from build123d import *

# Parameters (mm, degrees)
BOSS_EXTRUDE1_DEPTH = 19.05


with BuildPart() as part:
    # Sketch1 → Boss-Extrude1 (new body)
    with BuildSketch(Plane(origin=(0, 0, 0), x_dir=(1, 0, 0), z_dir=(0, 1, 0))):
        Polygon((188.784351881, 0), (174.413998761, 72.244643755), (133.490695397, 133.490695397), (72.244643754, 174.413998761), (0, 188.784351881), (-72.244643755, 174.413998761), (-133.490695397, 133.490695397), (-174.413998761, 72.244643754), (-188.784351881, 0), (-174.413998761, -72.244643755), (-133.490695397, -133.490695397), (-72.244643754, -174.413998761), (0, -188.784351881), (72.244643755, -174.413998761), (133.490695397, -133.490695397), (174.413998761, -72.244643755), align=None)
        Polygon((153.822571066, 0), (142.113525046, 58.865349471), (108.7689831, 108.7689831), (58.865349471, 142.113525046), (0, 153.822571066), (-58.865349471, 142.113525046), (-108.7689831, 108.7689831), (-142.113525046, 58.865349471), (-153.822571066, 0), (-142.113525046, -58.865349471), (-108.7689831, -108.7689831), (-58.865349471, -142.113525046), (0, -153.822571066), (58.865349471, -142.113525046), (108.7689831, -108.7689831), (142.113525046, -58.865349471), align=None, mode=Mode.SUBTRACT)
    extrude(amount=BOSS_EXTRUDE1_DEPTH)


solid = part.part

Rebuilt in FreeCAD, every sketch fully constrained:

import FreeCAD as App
import Part
import Sketcher
from FreeCAD import Vector
Q = App.Units.Quantity


def add_polygon(sketch, points):
    """Adds a closed chain of lines whose ends are joined by coincident constraints."""
    first, n = sketch.GeometryCount, len(points)
    for a, b in zip(points, points[1:] + points[:1]):
        sketch.addGeometry(Part.LineSegment(App.Vector(*a, 0), App.Vector(*b, 0)), False)
    for i in range(n):
        sketch.addConstraint(Sketcher.Constraint("Coincident", first + i, 2, first + (i + 1) % n, 1))

doc = App.newDocument("Part")
body = doc.addObject("PartDesign::Body", "Body")

# Sketch on XZ plane
sketch1 = doc.addObject("Sketcher::SketchObject", "Sketch")
body.addObject(sketch1)
sketch1.AttachmentSupport = (doc.XZ_Plane, [""])
sketch1.MapMode = "FlatFace"
add_polygon(sketch1, [(188.784352, 0), (174.413999, -72.244644), (133.490695, -133.490695), (72.244644, -174.413999), (0, -188.784352), (-72.244644, -174.413999), (-133.490695, -133.490695), (-174.413999, -72.244644), (-188.784352, 0), (-174.413999, 72.244644), (-133.490695, 133.490695), (-72.244644, 174.413999), (0, 188.784352), (72.244644, 174.413999), (133.490695, 133.490695), (174.413999, 72.244644)])  # lines 0-15
add_polygon(sketch1, [(142.113525, -58.865349), (153.822571, 0), (142.113525, 58.865349), (108.768983, 108.768983), (58.865349, 142.113525), (0, 153.822571), (-58.865349, 142.113525), (-108.768983, 108.768983), (-142.113525, 58.865349), (-153.822571, 0), (-142.113525, -58.865349), (-108.768983, -108.768983), (-58.865349, -142.113525), (0, -153.822571), (58.865349, -142.113525), (108.768983, -108.768983)])  # lines 16-31
sketch1.addConstraint(Sketcher.Constraint("Symmetric", 0, 2, 8, 2, -1, 1))
sketch1.addConstraint(Sketcher.Constraint("Symmetric", 1, 2, 9, 2, -1, 1))
sketch1.addConstraint(Sketcher.Constraint("Symmetric", 2, 2, 10, 2, -1, 1))
sketch1.addConstraint(Sketcher.Constraint("Symmetric", 3, 2, 11, 2, -1, 1))
sketch1.addConstraint(Sketcher.Constraint("Symmetric", 4, 2, 12, 2, -1, 1))
sketch1.addConstraint(Sketcher.Constraint("Symmetric", 5, 2, 13, 2, -1, 1))
sketch1.addConstraint(Sketcher.Constraint("Symmetric", 6, 2, 14, 2, -1, 1))
sketch1.addConstraint(Sketcher.Constraint("Symmetric", 7, 2, 15, 2, -1, 1))
sketch1.addConstraint(Sketcher.Constraint("Symmetric", 16, 2, 24, 2, -1, 1))
sketch1.addConstraint(Sketcher.Constraint("Symmetric", 17, 2, 25, 2, -1, 1))
sketch1.addConstraint(Sketcher.Constraint("Symmetric", 18, 2, 26, 2, -1, 1))
sketch1.addConstraint(Sketcher.Constraint("Symmetric", 19, 2, 27, 2, -1, 1))
sketch1.addConstraint(Sketcher.Constraint("Symmetric", 20, 2, 28, 2, -1, 1))
sketch1.addConstraint(Sketcher.Constraint("Symmetric", 21, 2, 29, 2, -1, 1))
sketch1.addConstraint(Sketcher.Constraint("Symmetric", 22, 2, 30, 2, -1, 1))
sketch1.addConstraint(Sketcher.Constraint("Symmetric", 23, 2, 31, 2, -1, 1))
sketch1.addConstraint(Sketcher.Constraint("Symmetric", 2, 2, 4, 2, -2))
sketch1.addConstraint(Sketcher.Constraint("Symmetric", 1, 2, 5, 2, -2))
sketch1.addConstraint(Sketcher.Constraint("Symmetric", 0, 2, 6, 2, -2))
sketch1.addConstraint(Sketcher.Constraint("Symmetric", 19, 2, 21, 2, -2))
sketch1.addConstraint(Sketcher.Constraint("Symmetric", 18, 2, 22, 2, -2))
sketch1.addConstraint(Sketcher.Constraint("Symmetric", 17, 2, 23, 2, -2))
sketch1.addConstraint(Sketcher.Constraint("PointOnObject", 3, 2, -2))
sketch1.addConstraint(Sketcher.Constraint("PointOnObject", 7, 2, -1))
sketch1.addConstraint(Sketcher.Constraint("PointOnObject", 16, 2, -1))
sketch1.addConstraint(Sketcher.Constraint("PointOnObject", 20, 2, -2))
sketch1.addConstraint(Sketcher.Constraint("Perpendicular", 0, 4))
sketch1.addConstraint(Sketcher.Constraint("Perpendicular", 1, 5))
sketch1.addConstraint(Sketcher.Constraint("Perpendicular", 12, 16))
sketch1.addConstraint(Sketcher.Constraint("Parallel", 14, 18))
sketch1.addConstraint(Sketcher.Constraint("Parallel", 13, 19))
sketch1.addConstraint(Sketcher.Constraint("Perpendicular", 16, 20))
sketch1.addConstraint(Sketcher.Constraint("Equal", 0, 1))
sketch1.addConstraint(Sketcher.Constraint("Equal", 1, 2))
sketch1.addConstraint(Sketcher.Constraint("Equal", 2, 3))
sketch1.addConstraint(Sketcher.Constraint("Equal", 17, 18))
sketch1.addConstraint(Sketcher.Constraint("Equal", 18, 19))
sketch1.addConstraint(Sketcher.Constraint("Equal", 19, 20))
sketch1.addConstraint(Sketcher.Constraint("Distance", 0, Q("2.9 in")))
sketch1.addConstraint(Sketcher.Constraint("Angle", 0, Q("-101.25 deg")))
sketch1.addConstraint(Sketcher.Constraint("Angle", 1, Q("-123.75 deg")))
sketch1.addConstraint(Sketcher.Constraint("DistanceX", 21, 2, 19, 2, 117.730699))
pad1 = doc.addObject("PartDesign::Pad", "Pad")
body.addObject(pad1)
pad1.Profile = sketch1
pad1.Length = Q("0.75 in")
pad1.Reversed = True

doc.recompute()
